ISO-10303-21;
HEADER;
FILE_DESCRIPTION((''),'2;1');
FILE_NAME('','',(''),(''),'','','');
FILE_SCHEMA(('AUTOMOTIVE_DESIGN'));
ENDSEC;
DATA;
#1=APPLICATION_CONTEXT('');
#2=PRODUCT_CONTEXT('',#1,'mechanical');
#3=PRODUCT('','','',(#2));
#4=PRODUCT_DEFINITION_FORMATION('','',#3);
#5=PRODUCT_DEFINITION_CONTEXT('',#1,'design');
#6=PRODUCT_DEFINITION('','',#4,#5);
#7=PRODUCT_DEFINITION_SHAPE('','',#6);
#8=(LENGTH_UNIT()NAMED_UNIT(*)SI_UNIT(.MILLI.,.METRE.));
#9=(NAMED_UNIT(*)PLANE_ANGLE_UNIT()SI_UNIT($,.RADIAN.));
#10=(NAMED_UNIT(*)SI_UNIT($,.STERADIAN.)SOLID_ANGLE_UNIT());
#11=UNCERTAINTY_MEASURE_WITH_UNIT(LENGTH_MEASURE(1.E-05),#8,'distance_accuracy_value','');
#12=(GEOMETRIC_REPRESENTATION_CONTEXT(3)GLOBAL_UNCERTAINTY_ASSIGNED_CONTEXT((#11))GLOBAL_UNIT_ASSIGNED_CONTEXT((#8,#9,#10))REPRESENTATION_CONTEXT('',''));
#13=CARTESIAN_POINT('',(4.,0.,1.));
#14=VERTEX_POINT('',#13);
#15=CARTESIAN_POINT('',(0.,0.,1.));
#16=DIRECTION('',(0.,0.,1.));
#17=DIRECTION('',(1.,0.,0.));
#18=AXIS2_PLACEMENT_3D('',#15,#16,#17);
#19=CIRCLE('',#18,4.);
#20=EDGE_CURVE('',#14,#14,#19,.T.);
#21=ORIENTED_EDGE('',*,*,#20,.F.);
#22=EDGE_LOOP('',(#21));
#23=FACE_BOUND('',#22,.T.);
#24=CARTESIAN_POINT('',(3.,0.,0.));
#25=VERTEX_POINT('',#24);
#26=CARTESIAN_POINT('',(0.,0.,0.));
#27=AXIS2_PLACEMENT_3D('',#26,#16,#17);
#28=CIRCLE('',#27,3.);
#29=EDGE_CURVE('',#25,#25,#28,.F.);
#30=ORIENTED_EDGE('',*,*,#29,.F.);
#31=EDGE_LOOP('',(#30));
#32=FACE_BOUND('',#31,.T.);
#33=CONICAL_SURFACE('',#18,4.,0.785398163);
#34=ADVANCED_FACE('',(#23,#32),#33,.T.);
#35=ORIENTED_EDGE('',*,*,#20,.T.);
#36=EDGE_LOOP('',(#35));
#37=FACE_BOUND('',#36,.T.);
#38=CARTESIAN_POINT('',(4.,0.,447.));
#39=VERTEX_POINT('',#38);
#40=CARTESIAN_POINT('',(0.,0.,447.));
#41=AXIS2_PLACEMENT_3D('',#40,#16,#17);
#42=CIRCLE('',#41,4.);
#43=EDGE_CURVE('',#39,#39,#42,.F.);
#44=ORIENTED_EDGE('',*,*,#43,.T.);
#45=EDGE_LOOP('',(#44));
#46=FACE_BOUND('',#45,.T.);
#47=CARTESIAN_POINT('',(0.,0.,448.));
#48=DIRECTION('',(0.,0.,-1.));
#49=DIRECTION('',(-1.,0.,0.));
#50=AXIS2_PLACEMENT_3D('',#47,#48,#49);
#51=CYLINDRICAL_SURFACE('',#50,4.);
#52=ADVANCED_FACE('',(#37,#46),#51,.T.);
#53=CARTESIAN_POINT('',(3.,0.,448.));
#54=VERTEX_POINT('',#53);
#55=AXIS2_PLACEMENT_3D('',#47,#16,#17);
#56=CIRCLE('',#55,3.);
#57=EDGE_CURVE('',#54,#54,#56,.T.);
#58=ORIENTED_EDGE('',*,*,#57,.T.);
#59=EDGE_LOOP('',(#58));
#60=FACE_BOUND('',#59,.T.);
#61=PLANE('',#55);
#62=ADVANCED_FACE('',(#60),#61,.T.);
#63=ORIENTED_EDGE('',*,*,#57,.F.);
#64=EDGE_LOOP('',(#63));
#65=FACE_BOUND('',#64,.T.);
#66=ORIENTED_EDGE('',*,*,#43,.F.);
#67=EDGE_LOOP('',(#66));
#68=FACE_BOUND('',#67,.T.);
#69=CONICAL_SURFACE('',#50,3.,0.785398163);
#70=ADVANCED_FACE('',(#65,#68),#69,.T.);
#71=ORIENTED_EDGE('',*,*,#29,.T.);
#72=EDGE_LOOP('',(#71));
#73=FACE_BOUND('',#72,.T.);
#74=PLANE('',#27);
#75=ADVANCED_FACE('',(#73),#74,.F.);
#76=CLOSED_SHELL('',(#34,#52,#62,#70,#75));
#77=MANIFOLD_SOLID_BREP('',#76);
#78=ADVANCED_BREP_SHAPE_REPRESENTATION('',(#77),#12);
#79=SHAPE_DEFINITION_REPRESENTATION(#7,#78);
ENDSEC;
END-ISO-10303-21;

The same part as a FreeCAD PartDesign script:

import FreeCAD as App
import Part
import Sketcher

V = App.Vector
Q = App.Units.Quantity


def edges_at(feature, points):
    """Names of the edges that pass closest to the given points."""
    edges = feature.Shape.Edges
    near = lambda p: min(range(len(edges)), key=lambda i: edges[i].distToShape(Part.Vertex(*p))[0])
    return sorted({f"Edge{near(p) + 1}" for p in points})

doc = App.newDocument("Part")
params = doc.addObject("Spreadsheet::Sheet", "Params")
for row, (alias, value) in enumerate([
    ("sketch1_diameter", "8 mm"),
    ("pad1_length", "448 mm"),
    ("chamfer_size", "1 mm"),
], start=1):
    params.set(f"A{row}", alias)
    params.set(f"B{row}", "=" + value)
    params.setAlias(f"B{row}", alias)

body = doc.addObject("PartDesign::Body", "Body")

# Sketch on XY plane
sketch1 = body.newObject("Sketcher::SketchObject", "Sketch")
sketch1.AttachmentSupport = (doc.getObject("XY_Plane"), [""])
sketch1.MapMode = "FlatFace"
sketch1.addGeometry(Part.Circle(V(0, 0, 0), V(0, 0, 1), 4), False)
sketch1.addConstraint(Sketcher.Constraint("Coincident", 0, 3, -1, 1))
sketch1.addConstraint(Sketcher.Constraint("Diameter", 0, Q("8 mm")))
sketch1.setExpression("Constraints[1]", "Params.sketch1_diameter")
pad1 = body.newObject("PartDesign::Pad", "Pad")
pad1.Profile = sketch1
pad1.setExpression("Length", "Params.pad1_length")
doc.recompute()

chamfer = body.newObject("PartDesign::Chamfer", "Chamfer")
chamfer.Base = (pad1, edges_at(pad1, [(-4, 0, 0), (-4, 0, 448)]))
chamfer.setExpression("Size", "Params.chamfer_size")

doc.recompute()
